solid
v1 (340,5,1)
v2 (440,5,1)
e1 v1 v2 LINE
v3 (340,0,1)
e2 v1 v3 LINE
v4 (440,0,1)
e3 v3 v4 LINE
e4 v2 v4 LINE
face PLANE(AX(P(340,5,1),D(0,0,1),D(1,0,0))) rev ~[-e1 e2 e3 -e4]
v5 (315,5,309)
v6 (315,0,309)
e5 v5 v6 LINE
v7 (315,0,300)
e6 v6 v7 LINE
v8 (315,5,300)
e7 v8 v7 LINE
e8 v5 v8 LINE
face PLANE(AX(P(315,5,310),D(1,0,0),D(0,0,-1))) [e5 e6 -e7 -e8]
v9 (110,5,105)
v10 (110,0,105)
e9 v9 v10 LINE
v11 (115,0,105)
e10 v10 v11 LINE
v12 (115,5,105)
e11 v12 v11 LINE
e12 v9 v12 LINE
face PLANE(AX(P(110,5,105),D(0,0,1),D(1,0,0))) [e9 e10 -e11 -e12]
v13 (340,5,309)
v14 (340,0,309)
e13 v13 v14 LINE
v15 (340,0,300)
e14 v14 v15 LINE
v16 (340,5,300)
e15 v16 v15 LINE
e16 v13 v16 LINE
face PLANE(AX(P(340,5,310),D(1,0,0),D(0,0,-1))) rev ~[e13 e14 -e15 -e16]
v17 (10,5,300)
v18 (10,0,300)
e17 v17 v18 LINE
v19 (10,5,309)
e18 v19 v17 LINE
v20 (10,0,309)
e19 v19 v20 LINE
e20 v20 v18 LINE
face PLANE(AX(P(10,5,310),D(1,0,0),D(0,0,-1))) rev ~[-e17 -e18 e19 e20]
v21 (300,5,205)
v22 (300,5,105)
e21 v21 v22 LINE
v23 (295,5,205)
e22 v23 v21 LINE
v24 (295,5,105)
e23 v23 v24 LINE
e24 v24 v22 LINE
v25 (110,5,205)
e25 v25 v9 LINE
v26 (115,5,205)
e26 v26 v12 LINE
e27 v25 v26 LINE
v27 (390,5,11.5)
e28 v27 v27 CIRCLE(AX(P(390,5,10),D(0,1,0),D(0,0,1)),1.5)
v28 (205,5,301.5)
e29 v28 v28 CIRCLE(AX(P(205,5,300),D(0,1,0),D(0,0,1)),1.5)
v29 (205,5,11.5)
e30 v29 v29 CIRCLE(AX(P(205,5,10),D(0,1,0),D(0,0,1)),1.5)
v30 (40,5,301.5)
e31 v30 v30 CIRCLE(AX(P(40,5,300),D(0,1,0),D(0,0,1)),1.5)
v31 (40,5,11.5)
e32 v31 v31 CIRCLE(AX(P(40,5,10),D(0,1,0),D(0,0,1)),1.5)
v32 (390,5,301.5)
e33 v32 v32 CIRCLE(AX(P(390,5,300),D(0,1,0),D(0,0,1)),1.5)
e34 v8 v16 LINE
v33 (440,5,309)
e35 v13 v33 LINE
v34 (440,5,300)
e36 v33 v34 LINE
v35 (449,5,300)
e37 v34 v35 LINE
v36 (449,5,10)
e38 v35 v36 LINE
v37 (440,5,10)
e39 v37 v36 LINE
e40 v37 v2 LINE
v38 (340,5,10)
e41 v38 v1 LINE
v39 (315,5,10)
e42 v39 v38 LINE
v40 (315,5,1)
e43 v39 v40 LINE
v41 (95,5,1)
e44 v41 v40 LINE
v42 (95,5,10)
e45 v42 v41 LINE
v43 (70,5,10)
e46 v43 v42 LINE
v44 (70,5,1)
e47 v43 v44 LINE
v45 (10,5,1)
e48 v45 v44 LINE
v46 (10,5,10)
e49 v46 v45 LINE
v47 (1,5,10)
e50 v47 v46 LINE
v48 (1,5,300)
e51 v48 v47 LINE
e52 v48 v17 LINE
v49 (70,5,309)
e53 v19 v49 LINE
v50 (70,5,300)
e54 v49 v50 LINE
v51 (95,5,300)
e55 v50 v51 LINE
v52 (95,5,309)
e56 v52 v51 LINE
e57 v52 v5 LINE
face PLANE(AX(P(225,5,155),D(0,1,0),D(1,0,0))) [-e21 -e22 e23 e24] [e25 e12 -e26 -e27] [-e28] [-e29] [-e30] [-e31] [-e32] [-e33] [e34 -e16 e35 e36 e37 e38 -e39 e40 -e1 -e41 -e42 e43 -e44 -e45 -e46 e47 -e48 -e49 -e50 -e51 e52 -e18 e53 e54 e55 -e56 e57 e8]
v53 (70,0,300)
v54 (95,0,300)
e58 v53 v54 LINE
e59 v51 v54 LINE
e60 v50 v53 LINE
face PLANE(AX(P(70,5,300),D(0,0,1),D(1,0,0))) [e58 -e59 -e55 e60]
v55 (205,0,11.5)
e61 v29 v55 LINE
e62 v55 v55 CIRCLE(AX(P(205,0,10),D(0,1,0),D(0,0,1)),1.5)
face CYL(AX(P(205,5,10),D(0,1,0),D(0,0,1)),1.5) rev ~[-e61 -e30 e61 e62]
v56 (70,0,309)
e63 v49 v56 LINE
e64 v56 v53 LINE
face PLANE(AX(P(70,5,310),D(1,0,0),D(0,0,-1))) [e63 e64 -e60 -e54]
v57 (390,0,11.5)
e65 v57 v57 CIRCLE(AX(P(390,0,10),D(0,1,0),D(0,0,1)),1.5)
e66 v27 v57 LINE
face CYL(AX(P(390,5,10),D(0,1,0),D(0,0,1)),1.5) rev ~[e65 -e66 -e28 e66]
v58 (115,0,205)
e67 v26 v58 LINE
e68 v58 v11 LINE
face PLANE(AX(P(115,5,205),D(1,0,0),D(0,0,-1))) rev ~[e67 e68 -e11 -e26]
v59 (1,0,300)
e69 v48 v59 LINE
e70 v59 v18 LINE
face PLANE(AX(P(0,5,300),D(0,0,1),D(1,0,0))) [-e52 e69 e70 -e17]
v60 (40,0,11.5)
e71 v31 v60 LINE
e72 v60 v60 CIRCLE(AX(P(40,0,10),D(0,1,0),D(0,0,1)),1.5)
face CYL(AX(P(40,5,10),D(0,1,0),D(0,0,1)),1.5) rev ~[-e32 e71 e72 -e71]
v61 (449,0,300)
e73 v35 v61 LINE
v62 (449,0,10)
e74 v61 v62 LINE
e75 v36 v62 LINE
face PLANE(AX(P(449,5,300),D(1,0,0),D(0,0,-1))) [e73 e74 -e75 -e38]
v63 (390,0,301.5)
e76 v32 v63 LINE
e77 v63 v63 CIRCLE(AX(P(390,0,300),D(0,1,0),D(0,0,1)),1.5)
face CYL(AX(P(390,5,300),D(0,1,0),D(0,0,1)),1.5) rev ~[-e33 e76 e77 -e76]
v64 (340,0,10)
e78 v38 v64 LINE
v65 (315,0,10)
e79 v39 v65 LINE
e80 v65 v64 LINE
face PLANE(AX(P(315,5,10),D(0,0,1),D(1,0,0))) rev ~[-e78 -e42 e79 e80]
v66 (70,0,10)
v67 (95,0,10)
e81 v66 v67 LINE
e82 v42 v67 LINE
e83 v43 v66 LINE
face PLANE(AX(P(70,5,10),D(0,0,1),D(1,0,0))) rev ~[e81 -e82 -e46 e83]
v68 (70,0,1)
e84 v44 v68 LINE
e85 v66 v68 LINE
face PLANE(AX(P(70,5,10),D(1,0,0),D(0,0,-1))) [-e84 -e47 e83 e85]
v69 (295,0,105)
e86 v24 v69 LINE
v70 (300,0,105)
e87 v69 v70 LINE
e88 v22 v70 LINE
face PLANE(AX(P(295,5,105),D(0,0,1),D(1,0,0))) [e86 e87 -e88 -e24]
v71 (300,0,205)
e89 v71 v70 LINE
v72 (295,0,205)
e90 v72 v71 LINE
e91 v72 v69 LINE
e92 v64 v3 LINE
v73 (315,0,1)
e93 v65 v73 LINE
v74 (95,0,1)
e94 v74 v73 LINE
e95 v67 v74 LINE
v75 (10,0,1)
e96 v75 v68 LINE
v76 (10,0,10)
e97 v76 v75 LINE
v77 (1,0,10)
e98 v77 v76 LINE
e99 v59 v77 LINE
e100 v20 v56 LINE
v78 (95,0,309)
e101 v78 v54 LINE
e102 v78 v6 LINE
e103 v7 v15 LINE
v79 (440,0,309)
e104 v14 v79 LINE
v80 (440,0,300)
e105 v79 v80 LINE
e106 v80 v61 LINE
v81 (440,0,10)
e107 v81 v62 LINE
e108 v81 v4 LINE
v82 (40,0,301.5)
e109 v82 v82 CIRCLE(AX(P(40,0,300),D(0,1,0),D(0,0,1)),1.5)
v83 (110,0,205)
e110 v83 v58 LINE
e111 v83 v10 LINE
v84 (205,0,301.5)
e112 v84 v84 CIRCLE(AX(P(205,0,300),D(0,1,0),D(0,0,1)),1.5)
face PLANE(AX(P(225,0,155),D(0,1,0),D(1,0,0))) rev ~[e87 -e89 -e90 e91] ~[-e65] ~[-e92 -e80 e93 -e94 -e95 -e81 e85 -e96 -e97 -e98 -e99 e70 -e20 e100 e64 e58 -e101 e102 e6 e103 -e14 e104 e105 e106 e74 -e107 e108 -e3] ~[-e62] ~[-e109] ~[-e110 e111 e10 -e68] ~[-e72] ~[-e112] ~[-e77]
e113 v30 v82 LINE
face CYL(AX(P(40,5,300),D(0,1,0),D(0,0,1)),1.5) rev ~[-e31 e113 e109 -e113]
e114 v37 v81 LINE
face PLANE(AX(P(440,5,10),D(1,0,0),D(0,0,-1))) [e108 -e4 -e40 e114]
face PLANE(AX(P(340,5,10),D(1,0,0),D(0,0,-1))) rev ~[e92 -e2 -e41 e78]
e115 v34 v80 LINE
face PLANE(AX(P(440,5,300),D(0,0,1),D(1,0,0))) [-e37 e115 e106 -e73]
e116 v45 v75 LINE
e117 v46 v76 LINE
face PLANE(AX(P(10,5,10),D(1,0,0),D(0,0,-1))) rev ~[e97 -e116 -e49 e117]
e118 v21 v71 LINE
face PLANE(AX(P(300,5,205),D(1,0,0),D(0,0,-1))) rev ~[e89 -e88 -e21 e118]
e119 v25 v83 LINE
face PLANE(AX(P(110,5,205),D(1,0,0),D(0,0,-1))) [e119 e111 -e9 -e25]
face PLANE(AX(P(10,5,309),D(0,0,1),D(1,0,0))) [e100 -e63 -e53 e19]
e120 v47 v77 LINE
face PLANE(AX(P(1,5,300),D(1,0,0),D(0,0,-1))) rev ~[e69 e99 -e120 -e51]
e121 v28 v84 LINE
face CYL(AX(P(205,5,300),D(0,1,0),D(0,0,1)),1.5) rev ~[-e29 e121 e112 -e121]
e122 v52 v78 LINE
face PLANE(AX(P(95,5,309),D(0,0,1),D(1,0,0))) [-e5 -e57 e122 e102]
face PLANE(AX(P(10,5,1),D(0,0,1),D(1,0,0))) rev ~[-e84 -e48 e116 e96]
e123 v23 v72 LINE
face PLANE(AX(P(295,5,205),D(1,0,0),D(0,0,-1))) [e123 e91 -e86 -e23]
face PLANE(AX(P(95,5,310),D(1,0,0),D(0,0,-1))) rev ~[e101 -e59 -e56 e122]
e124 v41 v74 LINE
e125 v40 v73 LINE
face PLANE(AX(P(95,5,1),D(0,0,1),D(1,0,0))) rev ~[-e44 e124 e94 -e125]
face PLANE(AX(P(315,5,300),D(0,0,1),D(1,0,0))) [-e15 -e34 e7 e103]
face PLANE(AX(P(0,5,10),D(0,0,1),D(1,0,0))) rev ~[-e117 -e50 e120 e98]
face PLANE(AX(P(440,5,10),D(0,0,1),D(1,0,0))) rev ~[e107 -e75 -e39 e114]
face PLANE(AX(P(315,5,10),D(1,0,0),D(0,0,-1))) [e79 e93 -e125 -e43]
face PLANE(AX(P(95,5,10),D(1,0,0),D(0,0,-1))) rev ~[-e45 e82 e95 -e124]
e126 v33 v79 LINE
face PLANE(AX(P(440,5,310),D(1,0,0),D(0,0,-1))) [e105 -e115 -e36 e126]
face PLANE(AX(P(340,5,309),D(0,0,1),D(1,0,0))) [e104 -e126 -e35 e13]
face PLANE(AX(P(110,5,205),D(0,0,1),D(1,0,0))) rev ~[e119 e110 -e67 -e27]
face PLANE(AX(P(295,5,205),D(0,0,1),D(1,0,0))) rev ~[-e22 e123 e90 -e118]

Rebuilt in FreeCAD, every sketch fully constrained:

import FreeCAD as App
import Part
import Sketcher

V = App.Vector
Q = App.Units.Quantity


def add_polygon(sketch, points):
    """Adds a closed chain of lines whose ends are joined by coincident constraints."""
    first, n = sketch.GeometryCount, len(points)
    for a, b in zip(points, points[1:] + points[:1]):
        sketch.addGeometry(Part.LineSegment(App.Vector(*a, 0), App.Vector(*b, 0)), False)
    for i in range(n):
        sketch.addConstraint(Sketcher.Constraint("Coincident", first + i, 2, first + (i + 1) % n, 1))

doc = App.newDocument("Part")
body = doc.addObject("PartDesign::Body", "Body")

sketch1 = body.newObject("Sketcher::SketchObject", "Sketch")
sketch1.AttachmentSupport = (doc.getObject("XZ_Plane"), [""])
sketch1.MapMode = "FlatFace"
add_polygon(sketch1, [(0, 0), (0, 310), (450, 310), (450, 0)])
sketch1.addConstraint([
    Sketcher.Constraint("Vertical", 0),
    Sketcher.Constraint("Horizontal", 1),
    Sketcher.Constraint("Vertical", 2),
    Sketcher.Constraint("Horizontal", 3),
    Sketcher.Constraint("Coincident", 3, 2, -1, 1),
    Sketcher.Constraint("DistanceX", 1, 1, 1, 2, Q("450 mm")),
    Sketcher.Constraint("DistanceY", 0, 1, 0, 2, Q("310 mm")),
])
pad1 = body.newObject("PartDesign::Pad", "Pad")
pad1.Profile = sketch1
pad1.Length = 5
pad1.Reversed = True

sketch2 = body.newObject("Sketcher::SketchObject", "Sketch001")
sketch2.AttachmentSupport = (doc.getObject("XZ_Plane"), [""])
sketch2.MapMode = "FlatFace"
sketch2.AttachmentOffset = App.Placement(V(0, 0, -5), App.Rotation())
add_polygon(sketch2, [(0, 0), (0, 10), (10, 10), (10, 0)])
add_polygon(sketch2, [(440, 300), (440, 310), (450, 310), (450, 300)])
add_polygon(sketch2, [(440, 0), (440, 10), (450, 10), (450, 0)])
add_polygon(sketch2, [(0, 300), (0, 310), (10, 310), (10, 300)])
add_polygon(sketch2, [(70, 0), (70, 10), (95, 10), (95, 0)])
add_polygon(sketch2, [(315, 0), (315, 10), (340, 10), (340, 0)])
add_polygon(sketch2, [(315, 300), (315, 310), (340, 310), (340, 300)])
add_polygon(sketch2, [(70, 300), (70, 310), (95, 310), (95, 300)])
sketch2.addConstraint([
    Sketcher.Constraint("Vertical", 0),
    Sketcher.Constraint("Horizontal", 1),
    Sketcher.Constraint("Vertical", 2),
    Sketcher.Constraint("Horizontal", 3),
    Sketcher.Constraint("Vertical", 4),
    Sketcher.Constraint("Horizontal", 5),
    Sketcher.Constraint("Vertical", 6),
    Sketcher.Constraint("Horizontal", 7),
    Sketcher.Constraint("Vertical", 8),
    Sketcher.Constraint("Horizontal", 9),
    Sketcher.Constraint("Vertical", 10),
    Sketcher.Constraint("Horizontal", 11),
    Sketcher.Constraint("Vertical", 12),
    Sketcher.Constraint("Horizontal", 13),
    Sketcher.Constraint("Vertical", 14),
    Sketcher.Constraint("Horizontal", 15),
    Sketcher.Constraint("Vertical", 16),
    Sketcher.Constraint("Horizontal", 17),
    Sketcher.Constraint("Vertical", 18),
    Sketcher.Constraint("Horizontal", 19),
    Sketcher.Constraint("Vertical", 20),
    Sketcher.Constraint("Horizontal", 21),
    Sketcher.Constraint("Vertical", 22),
    Sketcher.Constraint("Horizontal", 23),
    Sketcher.Constraint("Vertical", 24),
    Sketcher.Constraint("Horizontal", 25),
    Sketcher.Constraint("Vertical", 26),
    Sketcher.Constraint("Horizontal", 27),
    Sketcher.Constraint("Vertical", 28),
    Sketcher.Constraint("Horizontal", 29),
    Sketcher.Constraint("Vertical", 30),
    Sketcher.Constraint("Horizontal", 31),
    Sketcher.Constraint("Coincident", 3, 2, -1, 1),
    Sketcher.Constraint("PointOnObject", 10, 2, -1),
    Sketcher.Constraint("PointOnObject", 12, 2, -2),
    Sketcher.Constraint("PointOnObject", 18, 2, -1),
    Sketcher.Constraint("PointOnObject", 22, 2, -1),
    Sketcher.Constraint("Horizontal", 1, 2, 8, 2),
    Sketcher.Constraint("Horizontal", 5, 2, 12, 2),
    Sketcher.Constraint("Horizontal", 7, 2, 14, 2),
    Sketcher.Constraint("Horizontal", 9, 2, 16, 2),
    Sketcher.Constraint("Horizontal", 17, 2, 20, 2),
    Sketcher.Constraint("Horizontal", 13, 2, 24, 2),
    Sketcher.Constraint("Horizontal", 15, 2, 26, 2),
    Sketcher.Constraint("Horizontal", 25, 2, 28, 2),
    Sketcher.Constraint("Horizontal", 27, 2, 30, 2),
    Sketcher.Constraint("Vertical", 7, 2, 8, 2),
    Sketcher.Constraint("Vertical", 6, 2, 9, 2),
    Sketcher.Constraint("Vertical", 2, 2, 13, 2),
    Sketcher.Constraint("Vertical", 23, 2, 24, 2),
    Sketcher.Constraint("Vertical", 22, 2, 25, 2),
    Sketcher.Constraint("Vertical", 19, 2, 28, 2),
    Sketcher.Constraint("Vertical", 18, 2, 29, 2),
    Sketcher.Constraint("Equal", 3, 5),
    Sketcher.Constraint("Equal", 19, 21),
    Sketcher.Constraint("Equal", 15, 0),
    Sketcher.Constraint("Equal", 2, 4),
    Sketcher.Constraint("DistanceX", 1, 1, 1, 2, Q("10 mm")),
    Sketcher.Constraint("DistanceX", 17, 1, 17, 2, Q("25 mm")),
    Sketcher.Constraint("DistanceX", -1, 1, 4, 2, Q("440 mm")),
    Sketcher.Constraint("DistanceY", -1, 1, 4, 2, Q("310 mm")),
    Sketcher.Constraint("DistanceX", -1, 1, 16, 2, Q("70 mm")),
    Sketcher.Constraint("DistanceX", -1, 1, 20, 2, Q("315 mm")),
])
pocket1 = body.newObject("PartDesign::Pocket", "Pocket")
pocket1.Profile = sketch2
pocket1.Type = "ThroughAll"
pocket1.Reversed = True

sketch3 = body.newObject("Sketcher::SketchObject", "Sketch002")
sketch3.AttachmentSupport = (doc.getObject("XZ_Plane"), [""])
sketch3.MapMode = "FlatFace"
sketch3.AttachmentOffset = App.Placement(V(0, 0, -5), App.Rotation())
add_polygon(sketch3, [(110, 105), (110, 205), (115, 205), (115, 105)])
add_polygon(sketch3, [(295, 105), (295, 205), (300, 205), (300, 105)])
sketch3.addConstraint([
    Sketcher.Constraint("Vertical", 0),
    Sketcher.Constraint("Horizontal", 1),
    Sketcher.Constraint("Vertical", 2),
    Sketcher.Constraint("Horizontal", 3),
    Sketcher.Constraint("Vertical", 4),
    Sketcher.Constraint("Horizontal", 5),
    Sketcher.Constraint("Vertical", 6),
    Sketcher.Constraint("Horizontal", 7),
    Sketcher.Constraint("Horizontal", 1, 2, 4, 2),
    Sketcher.Constraint("Horizontal", 3, 2, 6, 2),
    Sketcher.Constraint("Equal", 3, 5),
    Sketcher.Constraint("DistanceX", 1, 1, 1, 2, Q("5 mm")),
    Sketcher.Constraint("DistanceY", 0, 1, 0, 2, Q("100 mm")),
    Sketcher.Constraint("DistanceX", -1, 1, 0, 2, Q("110 mm")),
    Sketcher.Constraint("DistanceY", -1, 1, 0, 2, Q("205 mm")),
    Sketcher.Constraint("DistanceX", -1, 1, 4, 2, Q("295 mm")),
])
pocket2 = body.newObject("PartDesign::Pocket", "Pocket001")
pocket2.Profile = sketch3
pocket2.Type = "ThroughAll"
pocket2.Reversed = True

sketch4 = body.newObject("Sketcher::SketchObject", "Sketch003")
sketch4.AttachmentSupport = (doc.getObject("XZ_Plane"), [""])
sketch4.MapMode = "FlatFace"
sketch4.AttachmentOffset = App.Placement(V(0, 0, -5), App.Rotation())
sketch4.addGeometry([
    Part.Circle(V(40, 10, 0), V(0, 0, 1), 1.5),
    Part.Circle(V(205, 10, 0), V(0, 0, 1), 1.5),
    Part.Circle(V(390, 10, 0), V(0, 0, 1), 1.5),
    Part.Circle(V(40, 300, 0), V(0, 0, 1), 1.5),
    Part.Circle(V(205, 300, 0), V(0, 0, 1), 1.5),
    Part.Circle(V(390, 300, 0), V(0, 0, 1), 1.5),
], False)
sketch4.addConstraint([
    Sketcher.Constraint("Equal", 0, 1),
    Sketcher.Constraint("Equal", 1, 2),
    Sketcher.Constraint("Equal", 2, 3),
    Sketcher.Constraint("Equal", 3, 4),
    Sketcher.Constraint("Equal", 4, 5),
    Sketcher.Constraint("Horizontal", 0, 3, 1, 3),
    Sketcher.Constraint("Horizontal", 1, 3, 2, 3),
    Sketcher.Constraint("Horizontal", 3, 3, 4, 3),
    Sketcher.Constraint("Horizontal", 4, 3, 5, 3),
    Sketcher.Constraint("Vertical", 0, 3, 3, 3),
    Sketcher.Constraint("Vertical", 1, 3, 4, 3),
    Sketcher.Constraint("Vertical", 2, 3, 5, 3),
    Sketcher.Constraint("Diameter", 0, Q("3 mm")),
    Sketcher.Constraint("DistanceX", -1, 1, 0, 3, Q("40 mm")),
    Sketcher.Constraint("DistanceY", -1, 1, 0, 3, Q("10 mm")),
    Sketcher.Constraint("DistanceX", -1, 1, 1, 3, Q("205 mm")),
    Sketcher.Constraint("DistanceX", -1, 1, 2, 3, Q("390 mm")),
    Sketcher.Constraint("DistanceY", -1, 1, 3, 3, Q("300 mm")),
])
pocket3 = body.newObject("PartDesign::Pocket", "Pocket002")
pocket3.Profile = sketch4
pocket3.Type = "ThroughAll"
pocket3.Reversed = True

sketch5 = body.newObject("Sketcher::SketchObject", "Sketch004")
sketch5.AttachmentSupport = (doc.getObject("XZ_Plane"), [""])
sketch5.MapMode = "FlatFace"
sketch5.AttachmentOffset = App.Placement(V(0, 0, -5), App.Rotation())
add_polygon(sketch5, [(-1, 10), (-1, 300), (1, 300), (1, 10)])
add_polygon(sketch5, [(10, -1), (10, 1), (70, 1), (70, -1)])
add_polygon(sketch5, [(95, -1), (95, 1), (315, 1), (315, -1)])
add_polygon(sketch5, [(340, -1), (340, 1), (440, 1), (440, -1)])
add_polygon(sketch5, [(449, 10), (449, 300), (451, 300), (451, 10)])
add_polygon(sketch5, [(340, 309), (340, 311), (440, 311), (440, 309)])
add_polygon(sketch5, [(95, 309), (95, 311), (315, 311), (315, 309)])
add_polygon(sketch5, [(10, 309), (10, 311), (70, 311), (70, 309)])
sketch5.addConstraint([
    Sketcher.Constraint("Vertical", 0),
    Sketcher.Constraint("Horizontal", 1),
    Sketcher.Constraint("Vertical", 2),
    Sketcher.Constraint("Horizontal", 3),
    Sketcher.Constraint("Vertical", 4),
    Sketcher.Constraint("Horizontal", 5),
    Sketcher.Constraint("Vertical", 6),
    Sketcher.Constraint("Horizontal", 7),
    Sketcher.Constraint("Vertical", 8),
    Sketcher.Constraint("Horizontal", 9),
    Sketcher.Constraint("Vertical", 10),
    Sketcher.Constraint("Horizontal", 11),
    Sketcher.Constraint("Vertical", 12),
    Sketcher.Constraint("Horizontal", 13),
    Sketcher.Constraint("Vertical", 14),
    Sketcher.Constraint("Horizontal", 15),
    Sketcher.Constraint("Vertical", 16),
    Sketcher.Constraint("Horizontal", 17),
    Sketcher.Constraint("Vertical", 18),
    Sketcher.Constraint("Horizontal", 19),
    Sketcher.Constraint("Vertical", 20),
    Sketcher.Constraint("Horizontal", 21),
    Sketcher.Constraint("Vertical", 22),
    Sketcher.Constraint("Horizontal", 23),
    Sketcher.Constraint("Vertical", 24),
    Sketcher.Constraint("Horizontal", 25),
    Sketcher.Constraint("Vertical", 26),
    Sketcher.Constraint("Horizontal", 27),
    Sketcher.Constraint("Vertical", 28),
    Sketcher.Constraint("Horizontal", 29),
    Sketcher.Constraint("Vertical", 30),
    Sketcher.Constraint("Horizontal", 31),
    Sketcher.Constraint("Horizontal", 5, 2, 8, 2),
    Sketcher.Constraint("Horizontal", 7, 2, 10, 2),
    Sketcher.Constraint("Horizontal", 9, 2, 12, 2),
    Sketcher.Constraint("Horizontal", 11, 2, 14, 2),
    Sketcher.Constraint("Horizontal", 1, 2, 16, 2),
    Sketcher.Constraint("Horizontal", 3, 2, 18, 2),
    Sketcher.Constraint("Horizontal", 21, 2, 24, 2),
    Sketcher.Constraint("Horizontal", 23, 2, 26, 2),
    Sketcher.Constraint("Horizontal", 25, 2, 28, 2),
    Sketcher.Constraint("Horizontal", 27, 2, 30, 2),
    Sketcher.Constraint("Vertical", 15, 2, 20, 2),
    Sketcher.Constraint("Vertical", 14, 2, 21, 2),
    Sketcher.Constraint("Vertical", 11, 2, 24, 2),
    Sketcher.Constraint("Vertical", 10, 2, 25, 2),
    Sketcher.Constraint("Vertical", 7, 2, 28, 2),
    Sketcher.Constraint("Vertical", 6, 2, 29, 2),
    Sketcher.Constraint("Equal", 3, 17),
    Sketcher.Constraint("Equal", 19, 4),
    Sketcher.Constraint("Equal", 14, 20),
    Sketcher.Constraint("DistanceX", 1, 1, 1, 2, Q("2 mm")),
    Sketcher.Constraint("DistanceX", 5, 1, 5, 2, Q("60 mm")),
    Sketcher.Constraint("DistanceX", 9, 1, 9, 2, Q("220 mm")),
    Sketcher.Constraint("DistanceX", 13, 1, 13, 2, Q("100 mm")),
    Sketcher.Constraint("DistanceY", 0, 1, 0, 2, Q("290 mm")),
    Sketcher.Constraint("DistanceX", 0, 2, -1, 1, Q("1 mm")),
    Sketcher.Constraint("DistanceY", -1, 1, 0, 2, Q("300 mm")),
    Sketcher.Constraint("DistanceX", -1, 1, 4, 2, Q("10 mm")),
    Sketcher.Constraint("DistanceY", -1, 1, 4, 2, Q("1 mm")),
    Sketcher.Constraint("DistanceX", -1, 1, 8, 2, Q("95 mm")),
    Sketcher.Constraint("DistanceX", -1, 1, 12, 2, Q("340 mm")),
    Sketcher.Constraint("DistanceX", -1, 1, 16, 2, Q("449 mm")),
    Sketcher.Constraint("DistanceY", -1, 1, 20, 2, Q("311 mm")),
])
pocket4 = body.newObject("PartDesign::Pocket", "Pocket003")
pocket4.Profile = sketch5
pocket4.Type = "ThroughAll"
pocket4.Reversed = True

doc.recompute()
